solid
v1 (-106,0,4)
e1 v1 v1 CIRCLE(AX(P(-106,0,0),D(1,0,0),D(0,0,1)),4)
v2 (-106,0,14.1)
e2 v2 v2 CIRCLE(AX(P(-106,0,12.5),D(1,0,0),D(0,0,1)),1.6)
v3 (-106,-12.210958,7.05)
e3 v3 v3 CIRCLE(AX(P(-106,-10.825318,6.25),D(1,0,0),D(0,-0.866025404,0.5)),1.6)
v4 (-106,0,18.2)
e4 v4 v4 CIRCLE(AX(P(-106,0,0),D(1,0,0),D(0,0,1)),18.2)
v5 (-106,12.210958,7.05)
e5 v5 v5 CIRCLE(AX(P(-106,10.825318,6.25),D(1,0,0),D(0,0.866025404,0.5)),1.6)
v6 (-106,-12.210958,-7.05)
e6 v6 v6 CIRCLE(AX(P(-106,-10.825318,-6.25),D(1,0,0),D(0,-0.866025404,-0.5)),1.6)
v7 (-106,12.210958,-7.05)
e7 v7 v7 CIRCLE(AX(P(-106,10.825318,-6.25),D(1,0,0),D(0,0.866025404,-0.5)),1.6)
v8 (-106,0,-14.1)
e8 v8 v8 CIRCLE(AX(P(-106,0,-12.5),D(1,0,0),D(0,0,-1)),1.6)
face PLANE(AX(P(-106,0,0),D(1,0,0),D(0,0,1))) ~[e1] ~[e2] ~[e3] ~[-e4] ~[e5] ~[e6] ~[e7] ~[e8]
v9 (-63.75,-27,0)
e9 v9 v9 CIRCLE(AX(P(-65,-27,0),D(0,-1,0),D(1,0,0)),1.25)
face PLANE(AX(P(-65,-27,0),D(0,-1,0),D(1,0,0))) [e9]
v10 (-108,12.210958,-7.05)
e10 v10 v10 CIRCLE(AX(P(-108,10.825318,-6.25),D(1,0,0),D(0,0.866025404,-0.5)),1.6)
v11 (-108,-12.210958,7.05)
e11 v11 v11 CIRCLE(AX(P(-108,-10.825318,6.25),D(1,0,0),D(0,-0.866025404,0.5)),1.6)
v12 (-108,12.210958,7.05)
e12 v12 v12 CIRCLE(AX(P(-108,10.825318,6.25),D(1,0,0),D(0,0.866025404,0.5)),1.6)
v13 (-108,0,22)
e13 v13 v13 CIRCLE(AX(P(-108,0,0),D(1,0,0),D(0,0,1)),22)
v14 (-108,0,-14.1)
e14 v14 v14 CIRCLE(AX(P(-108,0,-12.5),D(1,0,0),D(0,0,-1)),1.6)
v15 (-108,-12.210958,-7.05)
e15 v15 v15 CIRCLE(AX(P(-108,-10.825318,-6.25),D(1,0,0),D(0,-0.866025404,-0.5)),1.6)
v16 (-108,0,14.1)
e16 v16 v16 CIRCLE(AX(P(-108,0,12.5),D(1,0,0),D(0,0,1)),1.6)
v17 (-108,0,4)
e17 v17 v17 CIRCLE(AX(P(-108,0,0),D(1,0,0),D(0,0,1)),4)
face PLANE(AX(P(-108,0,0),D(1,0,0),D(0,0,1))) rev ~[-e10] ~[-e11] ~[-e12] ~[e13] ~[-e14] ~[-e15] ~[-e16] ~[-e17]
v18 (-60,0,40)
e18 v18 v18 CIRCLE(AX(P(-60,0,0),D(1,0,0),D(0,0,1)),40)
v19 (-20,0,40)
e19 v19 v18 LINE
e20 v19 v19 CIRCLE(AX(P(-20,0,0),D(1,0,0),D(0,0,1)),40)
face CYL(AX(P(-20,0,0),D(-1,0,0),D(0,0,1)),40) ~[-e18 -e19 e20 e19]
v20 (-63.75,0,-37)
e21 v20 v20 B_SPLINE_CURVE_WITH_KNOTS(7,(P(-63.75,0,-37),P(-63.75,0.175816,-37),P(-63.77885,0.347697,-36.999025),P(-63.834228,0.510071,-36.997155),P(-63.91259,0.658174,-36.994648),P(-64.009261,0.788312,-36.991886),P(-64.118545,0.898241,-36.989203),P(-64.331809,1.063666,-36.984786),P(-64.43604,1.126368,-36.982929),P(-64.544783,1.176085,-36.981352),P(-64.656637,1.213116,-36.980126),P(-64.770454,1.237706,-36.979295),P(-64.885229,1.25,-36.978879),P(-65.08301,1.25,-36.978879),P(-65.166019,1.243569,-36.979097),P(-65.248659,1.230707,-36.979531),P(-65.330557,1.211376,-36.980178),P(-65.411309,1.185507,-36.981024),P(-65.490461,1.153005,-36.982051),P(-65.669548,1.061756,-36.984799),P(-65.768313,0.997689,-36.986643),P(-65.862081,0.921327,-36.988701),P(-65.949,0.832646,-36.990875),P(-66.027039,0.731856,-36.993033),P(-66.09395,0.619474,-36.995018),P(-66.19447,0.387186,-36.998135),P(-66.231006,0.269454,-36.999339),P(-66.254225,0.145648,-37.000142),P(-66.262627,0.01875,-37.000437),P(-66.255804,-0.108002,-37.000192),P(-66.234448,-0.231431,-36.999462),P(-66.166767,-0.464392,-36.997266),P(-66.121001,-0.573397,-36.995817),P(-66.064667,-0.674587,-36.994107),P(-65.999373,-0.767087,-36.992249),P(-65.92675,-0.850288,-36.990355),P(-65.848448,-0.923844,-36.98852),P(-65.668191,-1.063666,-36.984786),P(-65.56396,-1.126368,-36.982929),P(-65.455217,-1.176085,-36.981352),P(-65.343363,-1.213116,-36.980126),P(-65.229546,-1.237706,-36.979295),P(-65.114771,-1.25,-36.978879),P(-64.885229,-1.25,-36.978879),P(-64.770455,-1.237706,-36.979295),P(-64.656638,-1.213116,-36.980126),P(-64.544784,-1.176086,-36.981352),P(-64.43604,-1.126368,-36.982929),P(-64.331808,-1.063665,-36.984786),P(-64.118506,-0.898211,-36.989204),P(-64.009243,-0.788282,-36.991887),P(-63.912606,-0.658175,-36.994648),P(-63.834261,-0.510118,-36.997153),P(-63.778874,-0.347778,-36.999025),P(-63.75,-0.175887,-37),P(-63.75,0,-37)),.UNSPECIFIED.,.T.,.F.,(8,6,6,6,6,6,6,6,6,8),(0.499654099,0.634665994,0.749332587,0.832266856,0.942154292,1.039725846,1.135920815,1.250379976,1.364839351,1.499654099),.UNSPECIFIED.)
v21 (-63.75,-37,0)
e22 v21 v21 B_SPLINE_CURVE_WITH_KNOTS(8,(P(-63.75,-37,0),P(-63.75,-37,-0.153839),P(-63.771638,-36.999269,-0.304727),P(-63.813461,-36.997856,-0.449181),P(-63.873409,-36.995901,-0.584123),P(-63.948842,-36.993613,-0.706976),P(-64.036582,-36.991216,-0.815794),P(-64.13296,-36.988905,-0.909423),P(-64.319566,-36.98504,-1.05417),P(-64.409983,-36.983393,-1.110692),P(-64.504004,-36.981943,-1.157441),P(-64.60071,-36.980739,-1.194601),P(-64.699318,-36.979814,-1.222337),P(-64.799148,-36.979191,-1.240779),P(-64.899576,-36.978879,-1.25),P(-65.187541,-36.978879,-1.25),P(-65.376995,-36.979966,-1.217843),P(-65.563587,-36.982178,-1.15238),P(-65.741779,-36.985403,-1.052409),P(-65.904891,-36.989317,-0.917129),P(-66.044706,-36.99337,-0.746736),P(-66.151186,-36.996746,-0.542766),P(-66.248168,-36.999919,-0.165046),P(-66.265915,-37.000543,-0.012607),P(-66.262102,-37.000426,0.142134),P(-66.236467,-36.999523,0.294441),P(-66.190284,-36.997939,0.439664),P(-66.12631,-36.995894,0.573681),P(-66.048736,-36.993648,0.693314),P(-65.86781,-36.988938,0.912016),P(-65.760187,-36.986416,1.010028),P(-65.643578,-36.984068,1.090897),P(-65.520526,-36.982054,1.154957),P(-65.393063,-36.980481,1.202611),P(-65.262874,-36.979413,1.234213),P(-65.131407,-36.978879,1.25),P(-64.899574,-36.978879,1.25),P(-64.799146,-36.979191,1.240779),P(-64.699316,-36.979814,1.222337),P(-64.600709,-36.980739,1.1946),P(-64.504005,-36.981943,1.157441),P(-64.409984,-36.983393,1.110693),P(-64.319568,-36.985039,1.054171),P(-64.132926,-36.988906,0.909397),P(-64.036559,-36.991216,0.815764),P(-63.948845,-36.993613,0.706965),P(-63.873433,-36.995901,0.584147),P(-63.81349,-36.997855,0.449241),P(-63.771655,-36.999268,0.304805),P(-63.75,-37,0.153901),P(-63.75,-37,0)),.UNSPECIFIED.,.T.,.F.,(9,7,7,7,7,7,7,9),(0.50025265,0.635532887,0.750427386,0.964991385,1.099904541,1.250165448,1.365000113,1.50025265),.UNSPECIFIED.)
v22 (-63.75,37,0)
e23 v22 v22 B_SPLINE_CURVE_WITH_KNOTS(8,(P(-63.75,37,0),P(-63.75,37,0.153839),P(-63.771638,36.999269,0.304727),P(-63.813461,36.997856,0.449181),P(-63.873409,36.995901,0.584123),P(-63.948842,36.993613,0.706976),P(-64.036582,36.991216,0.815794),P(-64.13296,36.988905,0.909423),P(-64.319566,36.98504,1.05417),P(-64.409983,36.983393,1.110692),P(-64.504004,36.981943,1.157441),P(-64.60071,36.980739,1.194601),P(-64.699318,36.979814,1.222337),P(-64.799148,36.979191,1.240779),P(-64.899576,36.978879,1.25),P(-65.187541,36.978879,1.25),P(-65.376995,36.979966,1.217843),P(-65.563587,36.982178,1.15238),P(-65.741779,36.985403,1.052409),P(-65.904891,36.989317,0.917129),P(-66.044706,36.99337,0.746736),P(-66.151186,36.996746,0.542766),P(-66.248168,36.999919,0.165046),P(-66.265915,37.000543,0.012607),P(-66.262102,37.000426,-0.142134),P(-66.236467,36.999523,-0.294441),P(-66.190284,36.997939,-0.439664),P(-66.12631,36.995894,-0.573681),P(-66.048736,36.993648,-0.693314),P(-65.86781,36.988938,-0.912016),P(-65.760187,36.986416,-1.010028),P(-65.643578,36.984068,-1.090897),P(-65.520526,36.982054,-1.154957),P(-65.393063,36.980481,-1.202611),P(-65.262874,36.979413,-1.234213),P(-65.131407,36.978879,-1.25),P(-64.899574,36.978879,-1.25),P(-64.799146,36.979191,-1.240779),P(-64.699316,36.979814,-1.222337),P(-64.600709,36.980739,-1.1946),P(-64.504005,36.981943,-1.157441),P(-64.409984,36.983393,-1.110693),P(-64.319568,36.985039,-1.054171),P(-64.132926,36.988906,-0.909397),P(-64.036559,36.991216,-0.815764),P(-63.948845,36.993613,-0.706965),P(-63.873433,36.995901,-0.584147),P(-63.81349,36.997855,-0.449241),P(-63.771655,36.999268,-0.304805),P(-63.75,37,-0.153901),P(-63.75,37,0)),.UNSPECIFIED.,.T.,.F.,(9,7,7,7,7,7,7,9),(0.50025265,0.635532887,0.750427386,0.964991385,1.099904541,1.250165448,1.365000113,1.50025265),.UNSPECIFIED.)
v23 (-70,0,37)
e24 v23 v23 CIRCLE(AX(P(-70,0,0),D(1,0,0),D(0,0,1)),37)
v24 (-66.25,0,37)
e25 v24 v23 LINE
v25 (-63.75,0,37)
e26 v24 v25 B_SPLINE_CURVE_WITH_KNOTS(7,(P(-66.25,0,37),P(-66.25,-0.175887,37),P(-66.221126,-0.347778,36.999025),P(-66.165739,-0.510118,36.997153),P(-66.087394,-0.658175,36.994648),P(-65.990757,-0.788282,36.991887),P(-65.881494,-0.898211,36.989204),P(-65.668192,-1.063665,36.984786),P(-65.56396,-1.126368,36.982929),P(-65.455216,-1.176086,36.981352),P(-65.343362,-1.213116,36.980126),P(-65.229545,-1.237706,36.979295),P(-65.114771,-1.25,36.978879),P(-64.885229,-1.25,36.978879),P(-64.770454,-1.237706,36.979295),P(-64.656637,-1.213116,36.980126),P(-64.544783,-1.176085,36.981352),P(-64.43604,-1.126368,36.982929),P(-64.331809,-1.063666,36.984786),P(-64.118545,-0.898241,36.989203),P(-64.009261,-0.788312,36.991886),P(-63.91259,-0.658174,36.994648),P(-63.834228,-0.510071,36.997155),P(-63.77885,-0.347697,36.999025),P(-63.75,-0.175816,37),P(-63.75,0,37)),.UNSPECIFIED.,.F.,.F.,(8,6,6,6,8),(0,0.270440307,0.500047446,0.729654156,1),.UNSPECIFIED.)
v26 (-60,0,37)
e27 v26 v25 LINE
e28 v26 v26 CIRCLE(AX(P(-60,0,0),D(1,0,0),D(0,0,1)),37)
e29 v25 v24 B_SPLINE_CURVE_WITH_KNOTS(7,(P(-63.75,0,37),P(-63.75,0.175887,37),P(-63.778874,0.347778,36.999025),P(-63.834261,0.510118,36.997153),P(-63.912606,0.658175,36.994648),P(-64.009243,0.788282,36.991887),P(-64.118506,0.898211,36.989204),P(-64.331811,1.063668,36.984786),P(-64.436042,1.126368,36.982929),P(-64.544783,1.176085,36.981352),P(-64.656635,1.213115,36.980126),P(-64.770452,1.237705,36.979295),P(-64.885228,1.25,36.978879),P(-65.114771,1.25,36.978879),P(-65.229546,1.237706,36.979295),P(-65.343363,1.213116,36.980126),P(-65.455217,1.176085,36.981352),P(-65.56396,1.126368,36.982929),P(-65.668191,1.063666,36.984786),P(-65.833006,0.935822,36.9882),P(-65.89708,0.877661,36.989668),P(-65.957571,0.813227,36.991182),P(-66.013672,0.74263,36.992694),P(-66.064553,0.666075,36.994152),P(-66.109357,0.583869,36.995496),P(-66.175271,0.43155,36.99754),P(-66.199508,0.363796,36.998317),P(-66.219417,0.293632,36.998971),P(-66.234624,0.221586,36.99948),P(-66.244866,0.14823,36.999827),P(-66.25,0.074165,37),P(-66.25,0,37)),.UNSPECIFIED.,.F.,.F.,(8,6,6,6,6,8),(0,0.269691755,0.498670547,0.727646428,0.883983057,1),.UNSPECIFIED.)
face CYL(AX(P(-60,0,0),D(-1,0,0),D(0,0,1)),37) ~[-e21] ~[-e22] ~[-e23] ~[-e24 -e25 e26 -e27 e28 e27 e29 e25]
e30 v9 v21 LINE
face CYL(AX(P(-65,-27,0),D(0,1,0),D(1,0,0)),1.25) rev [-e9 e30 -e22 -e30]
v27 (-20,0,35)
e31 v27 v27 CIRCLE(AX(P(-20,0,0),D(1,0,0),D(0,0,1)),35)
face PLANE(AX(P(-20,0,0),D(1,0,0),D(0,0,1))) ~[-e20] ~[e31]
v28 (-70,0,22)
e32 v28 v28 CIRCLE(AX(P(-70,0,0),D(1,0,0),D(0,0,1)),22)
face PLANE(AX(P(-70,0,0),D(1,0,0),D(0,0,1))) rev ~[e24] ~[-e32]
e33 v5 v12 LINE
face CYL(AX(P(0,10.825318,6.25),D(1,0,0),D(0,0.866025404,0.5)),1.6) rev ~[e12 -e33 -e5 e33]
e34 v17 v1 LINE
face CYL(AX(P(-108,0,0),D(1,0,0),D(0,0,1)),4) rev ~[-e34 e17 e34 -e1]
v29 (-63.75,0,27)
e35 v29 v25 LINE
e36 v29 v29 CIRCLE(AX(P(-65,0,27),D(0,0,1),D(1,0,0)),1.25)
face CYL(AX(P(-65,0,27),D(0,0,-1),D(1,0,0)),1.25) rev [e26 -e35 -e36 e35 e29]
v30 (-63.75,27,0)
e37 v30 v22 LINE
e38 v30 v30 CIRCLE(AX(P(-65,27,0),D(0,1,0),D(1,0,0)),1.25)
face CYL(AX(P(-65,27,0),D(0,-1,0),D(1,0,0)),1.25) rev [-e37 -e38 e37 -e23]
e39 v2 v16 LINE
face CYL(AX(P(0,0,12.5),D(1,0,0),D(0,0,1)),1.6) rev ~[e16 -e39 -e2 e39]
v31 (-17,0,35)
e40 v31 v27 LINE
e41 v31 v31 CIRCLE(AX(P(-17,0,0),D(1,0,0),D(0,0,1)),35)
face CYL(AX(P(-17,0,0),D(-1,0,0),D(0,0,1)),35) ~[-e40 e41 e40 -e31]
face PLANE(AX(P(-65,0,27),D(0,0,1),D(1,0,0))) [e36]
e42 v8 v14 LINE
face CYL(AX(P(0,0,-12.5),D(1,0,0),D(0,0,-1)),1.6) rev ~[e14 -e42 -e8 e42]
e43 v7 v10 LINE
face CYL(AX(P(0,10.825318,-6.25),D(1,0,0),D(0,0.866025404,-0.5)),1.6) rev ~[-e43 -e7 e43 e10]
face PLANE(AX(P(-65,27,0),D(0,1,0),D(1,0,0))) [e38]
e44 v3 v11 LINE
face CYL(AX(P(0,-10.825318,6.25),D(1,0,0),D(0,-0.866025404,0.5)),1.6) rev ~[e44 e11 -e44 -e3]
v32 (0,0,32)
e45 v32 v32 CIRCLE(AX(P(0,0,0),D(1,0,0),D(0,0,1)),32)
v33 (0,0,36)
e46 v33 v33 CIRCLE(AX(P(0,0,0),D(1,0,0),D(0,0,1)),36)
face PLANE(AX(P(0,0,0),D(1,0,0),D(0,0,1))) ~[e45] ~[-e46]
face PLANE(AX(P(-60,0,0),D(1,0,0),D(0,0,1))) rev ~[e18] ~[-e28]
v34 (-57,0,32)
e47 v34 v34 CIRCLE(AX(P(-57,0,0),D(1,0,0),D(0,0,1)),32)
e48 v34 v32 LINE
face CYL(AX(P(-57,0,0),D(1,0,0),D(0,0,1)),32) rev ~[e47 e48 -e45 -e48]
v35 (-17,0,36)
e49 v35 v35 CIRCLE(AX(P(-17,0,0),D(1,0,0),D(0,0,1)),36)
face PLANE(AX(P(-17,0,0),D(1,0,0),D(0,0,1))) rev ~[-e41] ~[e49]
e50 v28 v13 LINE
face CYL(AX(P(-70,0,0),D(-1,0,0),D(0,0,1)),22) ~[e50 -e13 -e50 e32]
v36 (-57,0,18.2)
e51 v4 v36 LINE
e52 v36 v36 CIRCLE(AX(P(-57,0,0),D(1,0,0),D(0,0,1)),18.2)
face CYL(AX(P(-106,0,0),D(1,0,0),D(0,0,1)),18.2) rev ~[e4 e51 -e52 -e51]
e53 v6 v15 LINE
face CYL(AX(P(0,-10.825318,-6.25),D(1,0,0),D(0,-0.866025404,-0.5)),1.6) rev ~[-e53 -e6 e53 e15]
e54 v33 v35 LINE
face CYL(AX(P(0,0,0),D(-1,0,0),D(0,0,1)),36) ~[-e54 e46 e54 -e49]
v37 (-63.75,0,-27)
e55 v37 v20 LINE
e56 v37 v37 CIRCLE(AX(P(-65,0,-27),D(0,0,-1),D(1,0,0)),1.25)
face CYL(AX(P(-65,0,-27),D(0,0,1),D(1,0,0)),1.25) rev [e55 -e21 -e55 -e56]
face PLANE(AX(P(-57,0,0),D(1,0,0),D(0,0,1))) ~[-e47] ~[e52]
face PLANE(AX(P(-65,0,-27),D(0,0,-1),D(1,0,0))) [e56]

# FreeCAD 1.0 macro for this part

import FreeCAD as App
import Part
import Sketcher

V = App.Vector

doc = App.newDocument("Part")
body = doc.addObject("PartDesign::Body", "Body")

sketch1 = body.newObject("Sketcher::SketchObject", "Sketch")
sketch1.AttachmentSupport = (doc.getObject("XY_Plane"), [""])
sketch1.MapMode = "FlatFace"
sketch1.addGeometry([
    Part.LineSegment(V(-60, 40, 0), V(-60, 37, 0)),
    Part.LineSegment(V(-60, 37, 0), V(-70, 37, 0)),
    Part.LineSegment(V(-70, 37, 0), V(-70, 22, 0)),
    Part.LineSegment(V(-70, 22, 0), V(-108, 22, 0)),
    Part.LineSegment(V(-108, 22, 0), V(-108, 4, 0)),
    Part.LineSegment(V(-108, 4, 0), V(-106, 4, 0)),
    Part.LineSegment(V(-106, 4, 0), V(-106, 18.2, 0)),
    Part.LineSegment(V(-106, 18.2, 0), V(-57, 18.2, 0)),
    Part.LineSegment(V(-57, 18.2, 0), V(-57, 32, 0)),
    Part.LineSegment(V(-57, 32, 0), V(0, 32, 0)),
    Part.LineSegment(V(0, 32, 0), V(0, 36, 0)),
    Part.LineSegment(V(0, 36, 0), V(-17, 36, 0)),
    Part.LineSegment(V(-17, 36, 0), V(-17, 35, 0)),
    Part.LineSegment(V(-17, 35, 0), V(-20, 35, 0)),
    Part.LineSegment(V(-20, 35, 0), V(-20, 40, 0)),
    Part.LineSegment(V(-20, 40, 0), V(-60, 40, 0)),
], False)
sketch1.addConstraint([
    Sketcher.Constraint("Coincident", 0, 2, 1, 1),
    Sketcher.Constraint("Coincident", 1, 2, 2, 1),
    Sketcher.Constraint("Coincident", 2, 2, 3, 1),
    Sketcher.Constraint("Coincident", 3, 2, 4, 1),
    Sketcher.Constraint("Coincident", 4, 2, 5, 1),
    Sketcher.Constraint("Coincident", 5, 2, 6, 1),
    Sketcher.Constraint("Coincident", 6, 2, 7, 1),
    Sketcher.Constraint("Coincident", 7, 2, 8, 1),
    Sketcher.Constraint("Coincident", 8, 2, 9, 1),
    Sketcher.Constraint("Coincident", 9, 2, 10, 1),
    Sketcher.Constraint("Coincident", 10, 2, 11, 1),
    Sketcher.Constraint("Coincident", 11, 2, 12, 1),
    Sketcher.Constraint("Coincident", 12, 2, 13, 1),
    Sketcher.Constraint("Coincident", 13, 2, 14, 1),
    Sketcher.Constraint("Coincident", 14, 2, 15, 1),
    Sketcher.Constraint("Coincident", 15, 2, 0, 1),
    Sketcher.Constraint("Vertical", 0),
    Sketcher.Constraint("Horizontal", 1),
    Sketcher.Constraint("Vertical", 2),
    Sketcher.Constraint("Horizontal", 3),
    Sketcher.Constraint("Vertical", 4),
    Sketcher.Constraint("Horizontal", 5),
    Sketcher.Constraint("Vertical", 6),
    Sketcher.Constraint("Horizontal", 7),
    Sketcher.Constraint("Vertical", 8),
    Sketcher.Constraint("Horizontal", 9),
    Sketcher.Constraint("Vertical", 10),
    Sketcher.Constraint("Horizontal", 11),
    Sketcher.Constraint("Vertical", 12),
    Sketcher.Constraint("Horizontal", 13),
    Sketcher.Constraint("Vertical", 14),
    Sketcher.Constraint("Horizontal", 15),
    Sketcher.Constraint("PointOnObject", 9, 2, -2),
    Sketcher.Constraint("Equal", 13, 0),
    Sketcher.Constraint("DistanceX", 1, 2, 1, 1, 10.0),
    Sketcher.Constraint("DistanceX", 3, 2, 3, 1, 38.0),
    Sketcher.Constraint("DistanceX", 5, 1, 5, 2, 2.0),
    Sketcher.Constraint("DistanceX", 7, 1, 7, 2, 49.0),
    Sketcher.Constraint("DistanceX", 9, 1, 9, 2, 57.0),
    Sketcher.Constraint("DistanceX", 11, 2, 11, 1, 17.0),
    Sketcher.Constraint("DistanceX", 13, 2, 13, 1, 3.0),
    Sketcher.Constraint("DistanceY", 2, 2, 2, 1, 15.0),
    Sketcher.Constraint("DistanceY", 4, 2, 4, 1, 18.0),
    Sketcher.Constraint("DistanceY", 10, 1, 10, 2, 4.0),
    Sketcher.Constraint("DistanceY", 12, 2, 12, 1, 1.0),
    Sketcher.Constraint("DistanceY", 14, 1, 14, 2, 5.0),
    Sketcher.Constraint("DistanceY", 6, 1, 6, 2, 14.2),
    Sketcher.Constraint("DistanceY", -1, 1, 0, 2, 37.0),
])
revolution = body.newObject("PartDesign::Revolution", "Revolution")
revolution.Profile = sketch1
revolution.ReferenceAxis = (sketch1, ["H_Axis"])
revolution.Angle = 360

sketch2 = body.newObject("Sketcher::SketchObject", "Sketch001")
sketch2.AttachmentSupport = (doc.getObject("YZ_Plane"), [""])
sketch2.MapMode = "FlatFace"
sketch2.addGeometry(Part.Circle(V(0, -12.5, 0), V(0, 0, 1), 1.6), False)
sketch2.addConstraint([
    Sketcher.Constraint("PointOnObject", 0, 3, -2),
    Sketcher.Constraint("Diameter", 0, 3.2),
    Sketcher.Constraint("DistanceY", 0, 3, -1, 1, 12.5),
])
pocket1 = body.newObject("PartDesign::Pocket", "Pocket")
pocket1.Profile = sketch2
pocket1.Type = "ThroughAll"
doc.recompute()

polarpattern = body.newObject("PartDesign::PolarPattern", "PolarPattern")
polarpattern.Originals = [pocket1]
polarpattern.Axis = (doc.getObject("X_Axis"), [""])
polarpattern.Angle = 360
polarpattern.Occurrences = 6
body.Tip = polarpattern

sketch3 = body.newObject("Sketcher::SketchObject", "Sketch002")
sketch3.AttachmentSupport = (doc.getObject("XY_Plane"), [""])
sketch3.MapMode = "FlatFace"
sketch3.AttachmentOffset = App.Placement(V(0, 0, 27), App.Rotation())
sketch3.addGeometry(Part.Circle(V(-65, 0, 0), V(0, 0, 1), 1.2), False)
sketch3.addConstraint([
    Sketcher.Constraint("PointOnObject", 0, 3, -1),
    Sketcher.Constraint("Diameter", 0, 2.5),
    Sketcher.Constraint("DistanceX", 0, 3, -1, 1, 65.0),
])
pocket2 = body.newObject("PartDesign::Pocket", "Pocket001")
pocket2.Profile = sketch3
pocket2.Length = 10
pocket2.Reversed = True
doc.recompute()

polarpattern2 = body.newObject("PartDesign::PolarPattern", "PolarPattern001")
polarpattern2.Originals = [pocket2]
polarpattern2.Axis = (doc.getObject("X_Axis"), [""])
polarpattern2.Angle = 360
polarpattern2.Occurrences = 4
body.Tip = polarpattern2

doc.recompute()
